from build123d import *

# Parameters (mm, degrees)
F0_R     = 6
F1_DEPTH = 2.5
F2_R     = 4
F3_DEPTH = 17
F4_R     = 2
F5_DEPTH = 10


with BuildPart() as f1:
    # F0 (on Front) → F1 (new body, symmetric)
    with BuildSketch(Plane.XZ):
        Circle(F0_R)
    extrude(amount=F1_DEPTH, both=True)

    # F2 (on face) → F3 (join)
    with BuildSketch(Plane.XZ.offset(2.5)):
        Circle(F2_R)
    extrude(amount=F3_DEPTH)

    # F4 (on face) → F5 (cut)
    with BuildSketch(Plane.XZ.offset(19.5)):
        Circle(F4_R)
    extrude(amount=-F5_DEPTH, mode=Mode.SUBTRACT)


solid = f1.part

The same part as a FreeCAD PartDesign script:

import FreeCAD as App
import Part
import Sketcher
from FreeCAD import Vector
Q = App.Units.Quantity

doc = App.newDocument("Part")
params = doc.addObject("Spreadsheet::Sheet", "Params")
for row, (alias, value) in enumerate([
    ("sketch1_diameter", "12 mm"),
    ("pad1_length", "5 mm"),
    ("sketch2_diameter", "8 mm"),
    ("pad2_length", "17 mm"),
    ("sketch3_diameter", "4 mm"),
    ("pocket1_length", "10 mm"),
], start=1):
    params.set(f"A{row}", alias)
    params.set(f"B{row}", "=" + value)
    params.setAlias(f"B{row}", alias)

body = doc.addObject("PartDesign::Body", "Body")

# Sketch on XZ plane
sketch1 = doc.addObject("Sketcher::SketchObject", "Sketch")
body.addObject(sketch1)
sketch1.AttachmentSupport = (doc.XZ_Plane, [""])
sketch1.MapMode = "FlatFace"
sketch1.addGeometry(Part.Circle(Vector(0, 0, 0), Vector(0, 0, 1), 6), False)
sketch1.addConstraint(Sketcher.Constraint("Coincident", 0, 3, -1, 1))
sketch1.addConstraint(Sketcher.Constraint("Diameter", 0, Q("12 mm")))
sketch1.setExpression("Constraints[1]", "Params.sketch1_diameter")
pad1 = doc.addObject("PartDesign::Pad", "Pad")
body.addObject(pad1)
pad1.Profile = sketch1
pad1.setExpression("Length", "Params.pad1_length")
pad1.Midplane = True

# Sketch on XZ plane
sketch2 = doc.addObject("Sketcher::SketchObject", "Sketch001")
body.addObject(sketch2)
sketch2.AttachmentSupport = (doc.XZ_Plane, [""])
sketch2.MapMode = "FlatFace"
sketch2.AttachmentOffset = App.Placement(Vector(0, 0, 2.5), App.Rotation())
sketch2.addGeometry(Part.Circle(Vector(0, 0, 0), Vector(0, 0, 1), 4), False)
sketch2.addConstraint(Sketcher.Constraint("Coincident", 0, 3, -1, 1))
sketch2.addConstraint(Sketcher.Constraint("Diameter", 0, Q("8 mm")))
sketch2.setExpression("Constraints[1]", "Params.sketch2_diameter")
pad2 = doc.addObject("PartDesign::Pad", "Pad001")
body.addObject(pad2)
pad2.Profile = sketch2
pad2.setExpression("Length", "Params.pad2_length")

# Sketch on XZ plane
sketch3 = doc.addObject("Sketcher::SketchObject", "Sketch002")
body.addObject(sketch3)
sketch3.AttachmentSupport = (doc.XZ_Plane, [""])
sketch3.MapMode = "FlatFace"
sketch3.AttachmentOffset = App.Placement(Vector(0, 0, 19.5), App.Rotation())
sketch3.addGeometry(Part.Circle(Vector(0, 0, 0), Vector(0, 0, 1), 2), False)
sketch3.addConstraint(Sketcher.Constraint("Coincident", 0, 3, -1, 1))
sketch3.addConstraint(Sketcher.Constraint("Diameter", 0, Q("4 mm")))
sketch3.setExpression("Constraints[1]", "Params.sketch3_diameter")
pocket1 = doc.addObject("PartDesign::Pocket", "Pocket")
body.addObject(pocket1)
pocket1.Profile = sketch3
pocket1.setExpression("Length", "Params.pocket1_length")

doc.recompute()
